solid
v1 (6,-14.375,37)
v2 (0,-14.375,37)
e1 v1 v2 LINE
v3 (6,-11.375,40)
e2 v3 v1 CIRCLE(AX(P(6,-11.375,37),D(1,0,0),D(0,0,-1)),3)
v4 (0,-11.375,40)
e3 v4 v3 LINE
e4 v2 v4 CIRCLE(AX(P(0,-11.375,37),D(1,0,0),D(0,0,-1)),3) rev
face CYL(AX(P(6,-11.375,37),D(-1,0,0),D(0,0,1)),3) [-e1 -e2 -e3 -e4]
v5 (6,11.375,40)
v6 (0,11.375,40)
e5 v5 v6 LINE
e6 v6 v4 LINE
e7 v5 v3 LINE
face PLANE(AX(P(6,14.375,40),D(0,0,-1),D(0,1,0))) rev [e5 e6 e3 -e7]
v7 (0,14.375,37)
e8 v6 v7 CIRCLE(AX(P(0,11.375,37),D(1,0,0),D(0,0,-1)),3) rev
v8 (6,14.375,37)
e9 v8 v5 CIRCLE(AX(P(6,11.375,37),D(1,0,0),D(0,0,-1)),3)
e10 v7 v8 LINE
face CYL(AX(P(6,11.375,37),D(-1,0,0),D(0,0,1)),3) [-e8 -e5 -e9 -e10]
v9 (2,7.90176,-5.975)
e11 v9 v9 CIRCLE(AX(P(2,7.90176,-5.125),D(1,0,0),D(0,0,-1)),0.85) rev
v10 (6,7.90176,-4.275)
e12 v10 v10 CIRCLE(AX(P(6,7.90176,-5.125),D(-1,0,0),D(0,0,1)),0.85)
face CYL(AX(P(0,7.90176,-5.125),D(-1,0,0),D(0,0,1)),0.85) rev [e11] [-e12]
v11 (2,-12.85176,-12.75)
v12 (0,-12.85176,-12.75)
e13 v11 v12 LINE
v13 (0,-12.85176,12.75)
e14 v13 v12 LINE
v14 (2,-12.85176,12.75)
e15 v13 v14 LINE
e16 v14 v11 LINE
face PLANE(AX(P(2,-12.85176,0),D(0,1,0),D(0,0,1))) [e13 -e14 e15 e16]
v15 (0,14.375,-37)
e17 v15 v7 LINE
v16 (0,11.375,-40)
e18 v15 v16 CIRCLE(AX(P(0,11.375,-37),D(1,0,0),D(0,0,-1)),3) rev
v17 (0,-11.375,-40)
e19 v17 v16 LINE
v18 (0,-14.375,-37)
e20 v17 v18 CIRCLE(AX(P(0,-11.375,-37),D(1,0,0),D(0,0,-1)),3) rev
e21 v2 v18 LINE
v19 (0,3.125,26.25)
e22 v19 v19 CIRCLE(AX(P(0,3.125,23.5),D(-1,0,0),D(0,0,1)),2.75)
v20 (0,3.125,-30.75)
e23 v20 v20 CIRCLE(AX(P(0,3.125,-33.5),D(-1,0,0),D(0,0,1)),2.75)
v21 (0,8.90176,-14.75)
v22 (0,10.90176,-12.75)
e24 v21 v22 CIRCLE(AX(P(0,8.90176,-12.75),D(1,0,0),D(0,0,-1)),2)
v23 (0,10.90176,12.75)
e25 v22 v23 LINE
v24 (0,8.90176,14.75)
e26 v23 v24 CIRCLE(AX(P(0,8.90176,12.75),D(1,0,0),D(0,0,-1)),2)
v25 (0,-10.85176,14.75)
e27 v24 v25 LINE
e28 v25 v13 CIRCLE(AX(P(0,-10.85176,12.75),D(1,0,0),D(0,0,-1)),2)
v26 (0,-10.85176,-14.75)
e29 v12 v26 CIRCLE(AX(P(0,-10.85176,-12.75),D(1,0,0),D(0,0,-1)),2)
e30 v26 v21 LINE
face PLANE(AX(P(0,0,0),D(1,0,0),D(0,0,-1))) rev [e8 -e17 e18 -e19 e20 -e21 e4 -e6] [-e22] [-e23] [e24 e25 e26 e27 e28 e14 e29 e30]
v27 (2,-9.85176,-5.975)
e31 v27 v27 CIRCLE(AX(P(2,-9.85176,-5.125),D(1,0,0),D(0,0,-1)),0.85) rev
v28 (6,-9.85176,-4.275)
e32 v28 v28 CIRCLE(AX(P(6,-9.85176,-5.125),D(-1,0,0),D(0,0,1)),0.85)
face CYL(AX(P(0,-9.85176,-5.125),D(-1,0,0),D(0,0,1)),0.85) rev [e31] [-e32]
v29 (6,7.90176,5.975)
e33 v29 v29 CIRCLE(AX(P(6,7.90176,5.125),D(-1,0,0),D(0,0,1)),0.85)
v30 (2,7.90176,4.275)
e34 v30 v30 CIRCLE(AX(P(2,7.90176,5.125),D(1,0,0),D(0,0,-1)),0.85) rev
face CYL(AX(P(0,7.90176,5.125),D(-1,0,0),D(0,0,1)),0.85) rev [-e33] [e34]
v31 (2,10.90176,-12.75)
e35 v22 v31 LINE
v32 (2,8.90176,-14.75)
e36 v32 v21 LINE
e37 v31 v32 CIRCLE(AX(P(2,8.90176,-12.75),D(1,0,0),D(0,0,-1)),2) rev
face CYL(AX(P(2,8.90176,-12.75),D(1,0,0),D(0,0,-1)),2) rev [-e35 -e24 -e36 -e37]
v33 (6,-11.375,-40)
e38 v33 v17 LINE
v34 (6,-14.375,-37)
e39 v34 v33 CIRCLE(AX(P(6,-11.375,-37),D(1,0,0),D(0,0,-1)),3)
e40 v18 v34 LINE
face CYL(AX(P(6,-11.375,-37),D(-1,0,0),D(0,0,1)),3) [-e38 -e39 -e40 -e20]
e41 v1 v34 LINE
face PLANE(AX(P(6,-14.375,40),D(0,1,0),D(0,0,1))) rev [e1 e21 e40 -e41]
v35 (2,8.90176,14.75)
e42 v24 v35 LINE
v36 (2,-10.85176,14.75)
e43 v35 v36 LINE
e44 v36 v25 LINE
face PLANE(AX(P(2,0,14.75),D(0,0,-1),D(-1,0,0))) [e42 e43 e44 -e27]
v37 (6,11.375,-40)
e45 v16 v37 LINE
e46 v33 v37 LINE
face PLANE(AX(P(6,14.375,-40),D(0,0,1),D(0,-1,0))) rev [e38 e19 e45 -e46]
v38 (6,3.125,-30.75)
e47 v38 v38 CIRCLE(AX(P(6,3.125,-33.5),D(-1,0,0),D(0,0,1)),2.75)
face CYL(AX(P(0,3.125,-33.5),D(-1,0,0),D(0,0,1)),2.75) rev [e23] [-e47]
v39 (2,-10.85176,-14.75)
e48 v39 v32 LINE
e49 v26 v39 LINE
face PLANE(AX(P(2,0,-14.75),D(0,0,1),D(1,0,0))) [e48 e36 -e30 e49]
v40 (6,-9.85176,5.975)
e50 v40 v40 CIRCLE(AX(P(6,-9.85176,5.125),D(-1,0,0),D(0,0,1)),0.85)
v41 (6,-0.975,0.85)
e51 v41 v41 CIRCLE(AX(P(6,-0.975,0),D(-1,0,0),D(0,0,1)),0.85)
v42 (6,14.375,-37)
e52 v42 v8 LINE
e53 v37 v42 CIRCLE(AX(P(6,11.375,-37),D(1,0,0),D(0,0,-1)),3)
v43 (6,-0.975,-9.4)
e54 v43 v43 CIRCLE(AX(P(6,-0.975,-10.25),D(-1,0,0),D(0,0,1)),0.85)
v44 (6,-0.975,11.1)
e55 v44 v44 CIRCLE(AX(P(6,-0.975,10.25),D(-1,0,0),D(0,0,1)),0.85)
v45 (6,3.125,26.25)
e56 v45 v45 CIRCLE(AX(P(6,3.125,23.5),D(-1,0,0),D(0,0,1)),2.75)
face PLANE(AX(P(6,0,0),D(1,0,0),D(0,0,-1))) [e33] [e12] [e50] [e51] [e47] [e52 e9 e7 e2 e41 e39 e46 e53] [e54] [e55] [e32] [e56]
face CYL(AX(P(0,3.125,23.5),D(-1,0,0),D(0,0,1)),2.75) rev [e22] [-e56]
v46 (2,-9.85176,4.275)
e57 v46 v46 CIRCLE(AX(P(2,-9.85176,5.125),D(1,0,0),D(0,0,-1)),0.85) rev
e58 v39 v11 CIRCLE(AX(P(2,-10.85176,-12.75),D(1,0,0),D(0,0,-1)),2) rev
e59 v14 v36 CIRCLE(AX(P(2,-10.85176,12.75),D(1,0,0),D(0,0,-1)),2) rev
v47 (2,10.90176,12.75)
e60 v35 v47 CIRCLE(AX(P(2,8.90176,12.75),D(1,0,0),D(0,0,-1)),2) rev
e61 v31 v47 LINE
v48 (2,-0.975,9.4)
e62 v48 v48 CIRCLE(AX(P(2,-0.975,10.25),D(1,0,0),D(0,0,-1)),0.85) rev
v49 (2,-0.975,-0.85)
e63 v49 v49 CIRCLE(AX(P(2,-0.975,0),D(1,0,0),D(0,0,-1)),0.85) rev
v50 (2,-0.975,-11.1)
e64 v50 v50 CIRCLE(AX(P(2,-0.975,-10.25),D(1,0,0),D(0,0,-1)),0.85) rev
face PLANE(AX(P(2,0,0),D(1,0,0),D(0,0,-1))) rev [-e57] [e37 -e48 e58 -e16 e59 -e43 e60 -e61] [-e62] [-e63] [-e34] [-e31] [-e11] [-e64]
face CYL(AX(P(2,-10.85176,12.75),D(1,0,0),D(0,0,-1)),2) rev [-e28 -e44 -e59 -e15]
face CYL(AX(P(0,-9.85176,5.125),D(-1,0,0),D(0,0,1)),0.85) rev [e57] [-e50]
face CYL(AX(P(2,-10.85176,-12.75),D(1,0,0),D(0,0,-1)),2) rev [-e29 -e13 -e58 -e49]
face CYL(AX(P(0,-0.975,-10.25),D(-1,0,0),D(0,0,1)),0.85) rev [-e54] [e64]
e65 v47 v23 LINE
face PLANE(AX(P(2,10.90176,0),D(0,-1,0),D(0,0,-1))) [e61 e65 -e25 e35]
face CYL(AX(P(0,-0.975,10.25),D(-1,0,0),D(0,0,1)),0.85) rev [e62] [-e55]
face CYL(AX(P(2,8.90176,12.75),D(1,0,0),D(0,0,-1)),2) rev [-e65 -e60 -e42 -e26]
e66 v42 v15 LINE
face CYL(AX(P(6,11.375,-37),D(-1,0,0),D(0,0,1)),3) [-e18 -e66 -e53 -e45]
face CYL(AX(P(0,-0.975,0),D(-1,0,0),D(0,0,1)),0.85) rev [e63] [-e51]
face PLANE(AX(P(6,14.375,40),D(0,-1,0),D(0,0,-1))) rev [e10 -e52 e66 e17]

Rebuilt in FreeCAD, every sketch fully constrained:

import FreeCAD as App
import Part
import Sketcher
Q = App.Units.Quantity


def edges_at(feature, points):
    """Names of the edges that pass closest to the given points."""
    edges = feature.Shape.Edges
    near = lambda p: min(range(len(edges)), key=lambda i: edges[i].distToShape(Part.Vertex(*p))[0])
    return sorted({f"Edge{near(p) + 1}" for p in points})


def add_polygon(sketch, points):
    """Adds a closed chain of lines whose ends are joined by coincident constraints."""
    first, n = sketch.GeometryCount, len(points)
    for a, b in zip(points, points[1:] + points[:1]):
        sketch.addGeometry(Part.LineSegment(App.Vector(*a, 0), App.Vector(*b, 0)), False)
    for i in range(n):
        sketch.addConstraint(Sketcher.Constraint("Coincident", first + i, 2, first + (i + 1) % n, 1))

doc = App.newDocument("Part")
body = doc.addObject("PartDesign::Body", "Body")

sketch1 = body.newObject("Sketcher::SketchObject", "Sketch")
sketch1.AttachmentSupport = (doc.getObject("YZ_Plane"), [""])
sketch1.MapMode = "FlatFace"
add_polygon(sketch1, [(14.375, 40), (-14.375, 40), (-14.375, -40), (14.375, -40)])
sketch1.addConstraint([
    Sketcher.Constraint("Horizontal", 0),
    Sketcher.Constraint("Vertical", 1),
    Sketcher.Constraint("Horizontal", 2),
    Sketcher.Constraint("Vertical", 3),
    Sketcher.Constraint("Symmetric", 0, 2, 2, 2, -1, 1),
    Sketcher.Constraint("DistanceY", 1, 2, 1, 1, Q("80 mm")),
    Sketcher.Constraint("DistanceX", 0, 2, 0, 1, Q("28.75 mm")),
])
pad1 = body.newObject("PartDesign::Pad", "Pad")
pad1.Profile = sketch1
pad1.Length = 6

sketch2 = body.newObject("Sketcher::SketchObject", "Sketch001")
sketch2.AttachmentSupport = (doc.getObject("YZ_Plane"), [""])
sketch2.MapMode = "FlatFace"
sketch2.addGeometry([
    Part.Circle(App.Vector(3.125, -33.5, 0), App.Vector(0, 0, 1), 2.75),
    Part.Circle(App.Vector(3.125, 23.5, 0), App.Vector(0, 0, 1), 2.75),
], False)
sketch2.addConstraint([
    Sketcher.Constraint("Equal", 0, 1),
    Sketcher.Constraint("Vertical", 0, 3, 1, 3),
    Sketcher.Constraint("Diameter", 0, Q("5.5 mm")),
    Sketcher.Constraint("DistanceY", 0, 3, 1, 3, Q("57 mm")),
    Sketcher.Constraint("DistanceY", 0, 3, -1, 1, Q("33.5 mm")),
    Sketcher.Constraint("DistanceX", -1, 1, 0, 3, Q("3.125 mm")),
])
doc.recompute()
hole = body.newObject("PartDesign::Hole", "Hole")
hole.Profile = sketch2
hole.ThreadType = "None"
hole.Diameter = 5.5
hole.DepthType = "ThroughAll"
hole.Reversed = True

sketch3 = body.newObject("Sketcher::SketchObject", "Sketch002")
sketch3.AttachmentSupport = (doc.getObject("YZ_Plane"), [""])
sketch3.MapMode = "FlatFace"
sketch3.addGeometry([
    Part.Circle(App.Vector(-0.975, -10.25, 0), App.Vector(0, 0, 1), 0.85),
    Part.Circle(App.Vector(-0.975, 10.25, 0), App.Vector(0, 0, 1), 0.85),
    Part.Circle(App.Vector(-0.975, 0, 0), App.Vector(0, 0, 1), 0.85),
    Part.Circle(App.Vector(-9.85176, -5.125, 0), App.Vector(0, 0, 1), 0.85),
    Part.Circle(App.Vector(-9.85176, 5.125, 0), App.Vector(0, 0, 1), 0.85),
    Part.Circle(App.Vector(7.90176, 5.125, 0), App.Vector(0, 0, 1), 0.85),
    Part.Circle(App.Vector(7.90176, -5.125, 0), App.Vector(0, 0, 1), 0.85),
], False)
sketch3.addConstraint([
    Sketcher.Constraint("Equal", 0, 1),
    Sketcher.Constraint("Equal", 1, 2),
    Sketcher.Constraint("Equal", 2, 3),
    Sketcher.Constraint("Equal", 3, 4),
    Sketcher.Constraint("Equal", 4, 5),
    Sketcher.Constraint("Equal", 5, 6),
    Sketcher.Constraint("Symmetric", 0, 3, 1, 3, -1),
    Sketcher.Constraint("Symmetric", 3, 3, 4, 3, -1),
    Sketcher.Constraint("Symmetric", 5, 3, 6, 3, -1),
    Sketcher.Constraint("PointOnObject", 2, 3, -1),
    Sketcher.Constraint("Horizontal", 4, 3, 5, 3),
    Sketcher.Constraint("Vertical", 1, 3, 2, 3),
    Sketcher.Constraint("Diameter", 0, Q("1.7 mm")),
    Sketcher.Constraint("DistanceY", 0, 3, 1, 3, Q("20.5 mm")),
    Sketcher.Constraint("DistanceY", 3, 3, 4, 3, Q("10.25 mm")),
    Sketcher.Constraint("DistanceX", 0, 3, -1, 1, Q("0.975 mm")),
    Sketcher.Constraint("DistanceX", 3, 3, -1, 1, Q("9.85176 mm")),
    Sketcher.Constraint("DistanceX", -1, 1, 5, 3, Q("7.90176 mm")),
])
doc.recompute()
hole2 = body.newObject("PartDesign::Hole", "Hole001")
hole2.Profile = sketch3
hole2.ThreadType = "None"
hole2.Diameter = 1.7
hole2.DepthType = "ThroughAll"
hole2.Reversed = True

sketch4 = body.newObject("Sketcher::SketchObject", "Sketch003")
sketch4.AttachmentSupport = (doc.getObject("YZ_Plane"), [""])
sketch4.MapMode = "FlatFace"
add_polygon(sketch4, [(10.90176, 14.75), (-12.85176, 14.75), (-12.85176, -14.75), (10.90176, -14.75)])
sketch4.addConstraint([
    Sketcher.Constraint("Horizontal", 0),
    Sketcher.Constraint("Vertical", 1),
    Sketcher.Constraint("Horizontal", 2),
    Sketcher.Constraint("Vertical", 3),
    Sketcher.Constraint("DistanceY", 1, 2, 1, 1, Q("29.5 mm")),
    Sketcher.Constraint("DistanceY", -1, 1, 0, 2, Q("14.75 mm")),
    Sketcher.Constraint("DistanceX", 0, 2, 0, 1, Q("23.753521 mm")),
    Sketcher.Constraint("DistanceX", 0, 2, -1, 1, Q("12.85176 mm")),
])
pocket1 = body.newObject("PartDesign::Pocket", "Pocket")
pocket1.Profile = sketch4
pocket1.Length = 2
pocket1.Reversed = True
doc.recompute()

fillet = body.newObject("PartDesign::Fillet", "Fillet")
fillet.Base = (pocket1, edges_at(pocket1, [
    (1, -12.852, 14.75),
    (1, -12.852, -14.75),
    (1, 10.902, -14.75),
    (1, 10.902, 14.75),
]))
fillet.Radius = 2
doc.recompute()

fillet2 = body.newObject("PartDesign::Fillet", "Fillet001")
fillet2.Base = (fillet, edges_at(fillet, [
    (3, -14.375, -40),
    (3, -14.375, 40),
    (3, 14.375, 40),
    (3, 14.375, -40),
]))
fillet2.Radius = 3

doc.recompute()
